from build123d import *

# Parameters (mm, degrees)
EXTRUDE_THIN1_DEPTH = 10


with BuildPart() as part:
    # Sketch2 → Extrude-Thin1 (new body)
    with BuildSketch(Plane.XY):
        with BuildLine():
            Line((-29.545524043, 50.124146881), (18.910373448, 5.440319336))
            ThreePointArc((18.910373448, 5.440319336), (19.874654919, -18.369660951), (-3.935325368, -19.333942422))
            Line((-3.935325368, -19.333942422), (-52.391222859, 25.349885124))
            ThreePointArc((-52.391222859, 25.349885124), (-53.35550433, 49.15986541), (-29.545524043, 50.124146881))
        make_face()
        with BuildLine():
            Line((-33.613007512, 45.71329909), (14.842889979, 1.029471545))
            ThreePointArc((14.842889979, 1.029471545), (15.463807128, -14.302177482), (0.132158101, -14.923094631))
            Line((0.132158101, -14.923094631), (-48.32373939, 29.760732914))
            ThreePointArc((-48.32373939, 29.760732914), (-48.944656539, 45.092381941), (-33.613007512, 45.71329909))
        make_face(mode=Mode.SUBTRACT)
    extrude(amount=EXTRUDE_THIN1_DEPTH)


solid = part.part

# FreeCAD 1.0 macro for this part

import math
import FreeCAD as App
import Part
import Sketcher

V = App.Vector

doc = App.newDocument("Part")
params = doc.addObject("Spreadsheet::Sheet", "Params")
for row, (alias, value) in enumerate([
    ("sketch1_radius", "16.85 mm"),
    ("sketch1_radius2", "10.85 mm"),
    ("pad1_length", "10 mm"),
], start=1):
    params.set(f"A{row}", alias)
    params.set(f"B{row}", "=" + value)
    params.setAlias(f"B{row}", alias)

body = doc.addObject("PartDesign::Body", "Body")

# Sketch on XY plane
sketch1 = body.newObject("Sketcher::SketchObject", "Sketch")
sketch1.AttachmentSupport = (doc.getObject("XY_Plane"), [""])
sketch1.MapMode = "FlatFace"
sketch1.addGeometry(Part.LineSegment(V(19, 5, 0), V(-30, 50, 0)), False)
sketch1.addGeometry(Part.ArcOfCircle(Part.Circle(V(-41, 38, 0), V(0, 0, 1), 17), math.radians(47), math.radians(227)), False)
sketch1.addGeometry(Part.LineSegment(V(-52, 25, 0), V(-4, -19, 0)), False)
sketch1.addGeometry(Part.ArcOfCircle(Part.Circle(V(7, -7, 0), V(0, 0, 1), 17), math.radians(-133), math.radians(47)), False)
sketch1.addGeometry(Part.LineSegment(V(-34, 46, 0), V(15, 1, 0)), False)
sketch1.addGeometry(Part.ArcOfCircle(Part.Circle(V(7, -7, 0), V(0, 0, 1), 11), math.radians(-133), math.radians(47)), False)
sketch1.addGeometry(Part.LineSegment(V(0, -15, 0), V(-48, 30, 0)), False)
sketch1.addGeometry(Part.ArcOfCircle(Part.Circle(V(-41, 38, 0), V(0, 0, 1), 11), math.radians(47), math.radians(227)), False)
sketch1.addConstraint(Sketcher.Constraint("Tangent", 0, 2, 1, 1))
sketch1.addConstraint(Sketcher.Constraint("Tangent", 1, 2, 2, 1))
sketch1.addConstraint(Sketcher.Constraint("Tangent", 2, 2, 3, 1))
sketch1.addConstraint(Sketcher.Constraint("Tangent", 3, 2, 0, 1))
sketch1.addConstraint(Sketcher.Constraint("Tangent", 4, 2, 5, 2))
sketch1.addConstraint(Sketcher.Constraint("Tangent", 5, 1, 6, 1))
sketch1.addConstraint(Sketcher.Constraint("Tangent", 6, 2, 7, 2))
sketch1.addConstraint(Sketcher.Constraint("Tangent", 7, 1, 4, 1))
sketch1.addConstraint(Sketcher.Constraint("Coincident", 5, 3, 3, 3))
sketch1.addConstraint(Sketcher.Constraint("Coincident", 7, 3, 1, 3))
sketch1.addConstraint(Sketcher.Constraint("Equal", 1, 3))
sketch1.addConstraint(Sketcher.Constraint("Equal", 5, 7))
sketch1.addConstraint(Sketcher.Constraint("Radius", 1, 16.85))
sketch1.addConstraint(Sketcher.Constraint("Radius", 5, 10.85))
sketch1.addConstraint(Sketcher.Constraint("DistanceY", -1, 1, 7, 1, 45.713299))
sketch1.addConstraint(Sketcher.Constraint("DistanceX", 1, 2, 0, 2, 22.845699))
sketch1.addConstraint(Sketcher.Constraint("Distance", 0, 65.91372))
sketch1.addConstraint(Sketcher.Constraint("DistanceX", -1, 1, 4, 2, 14.84289))
sketch1.setExpression("Constraints[12]", "Params.sketch1_radius")
sketch1.setExpression("Constraints[13]", "Params.sketch1_radius2")
pad1 = body.newObject("PartDesign::Pad", "Pad")
pad1.Profile = sketch1
pad1.setExpression("Length", "Params.pad1_length")

doc.recompute()
